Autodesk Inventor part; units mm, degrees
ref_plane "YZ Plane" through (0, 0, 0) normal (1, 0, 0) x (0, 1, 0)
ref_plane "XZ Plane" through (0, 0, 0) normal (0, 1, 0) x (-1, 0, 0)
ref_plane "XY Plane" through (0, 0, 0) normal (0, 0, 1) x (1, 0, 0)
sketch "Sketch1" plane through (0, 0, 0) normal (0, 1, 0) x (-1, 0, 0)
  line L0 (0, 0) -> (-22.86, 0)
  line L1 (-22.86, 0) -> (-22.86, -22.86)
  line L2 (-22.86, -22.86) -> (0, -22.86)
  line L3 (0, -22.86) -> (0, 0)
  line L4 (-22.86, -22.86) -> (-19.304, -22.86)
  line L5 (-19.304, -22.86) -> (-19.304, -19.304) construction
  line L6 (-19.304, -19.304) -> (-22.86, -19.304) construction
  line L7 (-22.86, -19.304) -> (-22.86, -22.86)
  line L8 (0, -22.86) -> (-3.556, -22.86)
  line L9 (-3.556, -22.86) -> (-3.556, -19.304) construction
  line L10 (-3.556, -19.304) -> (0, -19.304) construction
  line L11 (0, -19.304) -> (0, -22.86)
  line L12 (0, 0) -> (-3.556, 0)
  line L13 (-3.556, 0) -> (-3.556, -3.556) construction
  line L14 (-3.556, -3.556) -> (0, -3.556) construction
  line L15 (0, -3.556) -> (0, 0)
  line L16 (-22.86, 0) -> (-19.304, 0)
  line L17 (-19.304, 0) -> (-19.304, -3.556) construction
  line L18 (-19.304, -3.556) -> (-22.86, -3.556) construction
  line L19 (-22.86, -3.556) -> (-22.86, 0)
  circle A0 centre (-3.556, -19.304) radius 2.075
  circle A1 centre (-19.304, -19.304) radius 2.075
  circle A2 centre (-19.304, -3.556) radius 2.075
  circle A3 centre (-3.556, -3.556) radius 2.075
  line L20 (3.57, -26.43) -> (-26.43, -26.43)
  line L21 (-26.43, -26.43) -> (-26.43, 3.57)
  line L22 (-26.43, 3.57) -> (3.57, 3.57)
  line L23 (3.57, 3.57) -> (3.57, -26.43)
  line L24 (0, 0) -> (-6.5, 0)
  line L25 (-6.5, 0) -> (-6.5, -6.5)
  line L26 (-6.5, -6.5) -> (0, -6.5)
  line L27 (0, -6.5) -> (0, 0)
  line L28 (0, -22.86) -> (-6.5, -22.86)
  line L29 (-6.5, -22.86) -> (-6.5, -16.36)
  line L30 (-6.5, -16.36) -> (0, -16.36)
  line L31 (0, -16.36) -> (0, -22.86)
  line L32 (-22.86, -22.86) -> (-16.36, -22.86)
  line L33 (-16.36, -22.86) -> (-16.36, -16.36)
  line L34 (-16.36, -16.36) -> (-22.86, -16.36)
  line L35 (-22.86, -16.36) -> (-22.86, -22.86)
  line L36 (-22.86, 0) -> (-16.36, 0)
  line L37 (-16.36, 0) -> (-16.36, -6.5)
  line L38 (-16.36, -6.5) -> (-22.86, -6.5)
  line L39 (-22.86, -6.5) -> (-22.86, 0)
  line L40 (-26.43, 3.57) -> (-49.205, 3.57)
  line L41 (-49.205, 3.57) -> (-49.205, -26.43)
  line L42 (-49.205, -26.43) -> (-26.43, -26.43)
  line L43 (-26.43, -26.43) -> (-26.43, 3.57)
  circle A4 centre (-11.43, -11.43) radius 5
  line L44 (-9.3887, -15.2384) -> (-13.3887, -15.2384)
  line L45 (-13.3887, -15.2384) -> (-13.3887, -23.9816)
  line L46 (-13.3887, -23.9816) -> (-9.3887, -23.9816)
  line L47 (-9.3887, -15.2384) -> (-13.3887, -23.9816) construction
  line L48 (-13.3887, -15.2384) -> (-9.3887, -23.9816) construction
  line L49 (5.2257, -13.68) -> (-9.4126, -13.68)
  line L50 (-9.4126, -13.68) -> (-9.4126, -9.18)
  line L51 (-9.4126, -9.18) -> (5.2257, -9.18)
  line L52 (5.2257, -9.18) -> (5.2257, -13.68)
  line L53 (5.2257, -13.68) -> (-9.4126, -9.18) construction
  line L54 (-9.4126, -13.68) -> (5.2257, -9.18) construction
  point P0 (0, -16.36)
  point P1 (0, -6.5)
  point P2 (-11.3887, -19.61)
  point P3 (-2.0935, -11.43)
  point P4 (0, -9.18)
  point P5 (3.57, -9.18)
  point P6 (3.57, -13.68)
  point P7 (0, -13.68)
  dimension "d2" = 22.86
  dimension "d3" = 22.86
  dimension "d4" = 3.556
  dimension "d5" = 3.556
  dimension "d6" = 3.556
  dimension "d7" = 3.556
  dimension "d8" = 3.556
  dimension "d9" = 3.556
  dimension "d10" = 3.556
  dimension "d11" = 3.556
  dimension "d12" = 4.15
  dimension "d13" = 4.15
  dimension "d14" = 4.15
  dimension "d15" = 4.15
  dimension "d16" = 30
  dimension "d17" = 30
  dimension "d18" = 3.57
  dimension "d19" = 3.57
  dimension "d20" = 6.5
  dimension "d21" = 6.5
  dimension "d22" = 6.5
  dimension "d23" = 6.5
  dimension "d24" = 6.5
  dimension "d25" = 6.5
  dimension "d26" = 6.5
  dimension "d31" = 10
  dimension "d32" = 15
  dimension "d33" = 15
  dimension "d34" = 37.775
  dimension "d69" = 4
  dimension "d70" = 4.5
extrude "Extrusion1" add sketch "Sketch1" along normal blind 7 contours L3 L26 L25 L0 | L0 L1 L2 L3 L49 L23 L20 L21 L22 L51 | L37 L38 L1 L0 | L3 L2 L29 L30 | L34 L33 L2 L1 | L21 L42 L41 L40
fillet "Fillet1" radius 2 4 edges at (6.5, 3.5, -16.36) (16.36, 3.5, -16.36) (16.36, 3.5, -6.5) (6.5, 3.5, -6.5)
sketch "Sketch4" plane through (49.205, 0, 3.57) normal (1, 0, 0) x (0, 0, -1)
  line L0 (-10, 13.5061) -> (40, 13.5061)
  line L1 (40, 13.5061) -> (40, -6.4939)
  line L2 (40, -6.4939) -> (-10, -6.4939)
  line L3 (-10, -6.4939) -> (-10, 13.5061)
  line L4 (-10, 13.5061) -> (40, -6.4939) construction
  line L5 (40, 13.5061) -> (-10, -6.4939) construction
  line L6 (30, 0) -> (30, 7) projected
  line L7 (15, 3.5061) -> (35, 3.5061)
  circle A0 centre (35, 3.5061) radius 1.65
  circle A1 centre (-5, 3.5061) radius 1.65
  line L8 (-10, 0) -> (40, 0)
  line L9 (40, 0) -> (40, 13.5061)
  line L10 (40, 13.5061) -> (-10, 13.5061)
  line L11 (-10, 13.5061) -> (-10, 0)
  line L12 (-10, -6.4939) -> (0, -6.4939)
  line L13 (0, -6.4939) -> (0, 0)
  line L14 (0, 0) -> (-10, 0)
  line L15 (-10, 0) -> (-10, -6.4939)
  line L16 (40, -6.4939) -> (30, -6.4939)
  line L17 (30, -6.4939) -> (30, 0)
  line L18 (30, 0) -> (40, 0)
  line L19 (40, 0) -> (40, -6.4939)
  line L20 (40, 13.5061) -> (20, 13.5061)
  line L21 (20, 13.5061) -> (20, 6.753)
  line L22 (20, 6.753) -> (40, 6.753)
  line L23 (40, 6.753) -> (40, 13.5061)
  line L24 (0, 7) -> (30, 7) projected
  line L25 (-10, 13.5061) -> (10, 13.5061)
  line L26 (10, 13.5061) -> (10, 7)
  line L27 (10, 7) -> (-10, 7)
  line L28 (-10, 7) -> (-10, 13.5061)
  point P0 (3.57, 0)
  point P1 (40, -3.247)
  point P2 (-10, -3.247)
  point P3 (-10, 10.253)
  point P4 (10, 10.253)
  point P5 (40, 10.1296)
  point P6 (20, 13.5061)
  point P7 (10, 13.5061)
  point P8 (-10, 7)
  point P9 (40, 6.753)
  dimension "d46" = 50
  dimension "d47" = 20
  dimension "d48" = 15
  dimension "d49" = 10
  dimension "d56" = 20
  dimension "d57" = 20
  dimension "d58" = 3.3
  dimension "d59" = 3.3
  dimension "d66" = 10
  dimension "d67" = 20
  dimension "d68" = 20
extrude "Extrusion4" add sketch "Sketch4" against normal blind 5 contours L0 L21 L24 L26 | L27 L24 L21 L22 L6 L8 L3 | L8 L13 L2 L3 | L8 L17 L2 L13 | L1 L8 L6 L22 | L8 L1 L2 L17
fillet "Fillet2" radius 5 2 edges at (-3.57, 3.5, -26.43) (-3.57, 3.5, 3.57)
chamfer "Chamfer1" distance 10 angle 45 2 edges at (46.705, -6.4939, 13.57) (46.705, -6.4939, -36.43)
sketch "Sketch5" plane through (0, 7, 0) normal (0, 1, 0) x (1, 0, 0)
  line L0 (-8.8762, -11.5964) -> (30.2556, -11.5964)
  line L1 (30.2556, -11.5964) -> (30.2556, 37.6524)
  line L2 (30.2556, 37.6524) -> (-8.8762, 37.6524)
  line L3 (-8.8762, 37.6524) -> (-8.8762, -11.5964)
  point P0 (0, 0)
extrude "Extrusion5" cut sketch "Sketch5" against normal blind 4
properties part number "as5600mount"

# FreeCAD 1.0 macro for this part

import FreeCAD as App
import Part
import Sketcher
Q = App.Units.Quantity


def edges_at(feature, points):
    """Names of the edges that pass closest to the given points."""
    edges = feature.Shape.Edges
    near = lambda p: min(range(len(edges)), key=lambda i: edges[i].distToShape(Part.Vertex(*p))[0])
    return sorted({f"Edge{near(p) + 1}" for p in points})

doc = App.newDocument("Part")
params = doc.addObject("Spreadsheet::Sheet", "Params")
for row, (alias, value) in enumerate([
    ("sketch1_diameter", "4.15 mm"),
    ("sketch1_height", "30 mm"),
    ("sketch1_width", "6.5 mm"),
    ("sketch1_width2", "3.57 mm"),
    ("pad1_length", "7 mm"),
    ("fillet_radius", "2 mm"),
    ("sketch2_diameter", "3.3 mm"),
    ("sketch2_height", "10 mm"),
    ("sketch2_height2", "20 mm"),
    ("pad2_length", "5 mm"),
    ("fillet2_radius", "5 mm"),
    ("chamfer_size", "10 mm"),
    ("pocket1_length", "4 mm"),
], start=1):
    params.set(f"A{row}", alias)
    params.set(f"B{row}", "=" + value)
    params.setAlias(f"B{row}", alias)

body = doc.addObject("PartDesign::Body", "Body")

# Sketch on XZ plane
sketch1 = body.newObject("Sketcher::SketchObject", "Sketch")
sketch1.AttachmentSupport = (doc.getObject("XZ_Plane"), [""])
sketch1.MapMode = "FlatFace"
sketch1.addGeometry(Part.LineSegment(App.Vector(6.5, -6.5, 0), App.Vector(0, -6.5, 0)), False)
sketch1.addGeometry(Part.LineSegment(App.Vector(0, -6.5, 0), App.Vector(0, -9.2, 0)), False)
sketch1.addGeometry(Part.LineSegment(App.Vector(0, -9.2, 0), App.Vector(-3.6, -9.2, 0)), False)
sketch1.addGeometry(Part.LineSegment(App.Vector(-3.6, -9.2, 0), App.Vector(-3.6, 3.6, 0)), False)
sketch1.addGeometry(Part.LineSegment(App.Vector(-3.6, 3.6, 0), App.Vector(49.2, 3.6, 0)), False)
sketch1.addGeometry(Part.LineSegment(App.Vector(49.2, 3.6, 0), App.Vector(49.2, -26.4, 0)), False)
sketch1.addGeometry(Part.LineSegment(App.Vector(49.2, -26.4, 0), App.Vector(-3.6, -26.4, 0)), False)
sketch1.addGeometry(Part.LineSegment(App.Vector(-3.6, -26.4, 0), App.Vector(-3.6, -13.7, 0)), False)
sketch1.addGeometry(Part.LineSegment(App.Vector(-3.6, -13.7, 0), App.Vector(0, -13.7, 0)), False)
sketch1.addGeometry(Part.LineSegment(App.Vector(0, -13.7, 0), App.Vector(0, -16.4, 0)), False)
sketch1.addGeometry(Part.LineSegment(App.Vector(0, -16.4, 0), App.Vector(6.5, -16.4, 0)), False)
sketch1.addGeometry(Part.LineSegment(App.Vector(6.5, -16.4, 0), App.Vector(6.5, -22.9, 0)), False)
sketch1.addGeometry(Part.LineSegment(App.Vector(6.5, -22.9, 0), App.Vector(16.4, -22.9, 0)), False)
sketch1.addGeometry(Part.LineSegment(App.Vector(16.4, -22.9, 0), App.Vector(16.4, -16.4, 0)), False)
sketch1.addGeometry(Part.LineSegment(App.Vector(16.4, -16.4, 0), App.Vector(22.9, -16.4, 0)), False)
sketch1.addGeometry(Part.LineSegment(App.Vector(22.9, -16.4, 0), App.Vector(22.9, -6.5, 0)), False)
sketch1.addGeometry(Part.LineSegment(App.Vector(22.9, -6.5, 0), App.Vector(16.4, -6.5, 0)), False)
sketch1.addGeometry(Part.LineSegment(App.Vector(16.4, -6.5, 0), App.Vector(16.4, 0, 0)), False)
sketch1.addGeometry(Part.LineSegment(App.Vector(16.4, 0, 0), App.Vector(6.5, 0, 0)), False)
sketch1.addGeometry(Part.LineSegment(App.Vector(6.5, 0, 0), App.Vector(6.5, -6.5, 0)), False)
sketch1.addGeometry(Part.Circle(App.Vector(3.6, -3.6, 0), App.Vector(0, 0, 1), 2.1), False)
sketch1.addGeometry(Part.Circle(App.Vector(19.3, -3.6, 0), App.Vector(0, 0, 1), 2.1), False)
sketch1.addGeometry(Part.Circle(App.Vector(19.3, -19.3, 0), App.Vector(0, 0, 1), 2.1), False)
sketch1.addGeometry(Part.Circle(App.Vector(3.6, -19.3, 0), App.Vector(0, 0, 1), 2.1), False)
sketch1.addConstraint(Sketcher.Constraint("Coincident", 0, 2, 1, 1))
sketch1.addConstraint(Sketcher.Constraint("Coincident", 1, 2, 2, 1))
sketch1.addConstraint(Sketcher.Constraint("Coincident", 2, 2, 3, 1))
sketch1.addConstraint(Sketcher.Constraint("Coincident", 3, 2, 4, 1))
sketch1.addConstraint(Sketcher.Constraint("Coincident", 4, 2, 5, 1))
sketch1.addConstraint(Sketcher.Constraint("Coincident", 5, 2, 6, 1))
sketch1.addConstraint(Sketcher.Constraint("Coincident", 6, 2, 7, 1))
sketch1.addConstraint(Sketcher.Constraint("Coincident", 7, 2, 8, 1))
sketch1.addConstraint(Sketcher.Constraint("Coincident", 8, 2, 9, 1))
sketch1.addConstraint(Sketcher.Constraint("Coincident", 9, 2, 10, 1))
sketch1.addConstraint(Sketcher.Constraint("Coincident", 10, 2, 11, 1))
sketch1.addConstraint(Sketcher.Constraint("Coincident", 11, 2, 12, 1))
sketch1.addConstraint(Sketcher.Constraint("Coincident", 12, 2, 13, 1))
sketch1.addConstraint(Sketcher.Constraint("Coincident", 13, 2, 14, 1))
sketch1.addConstraint(Sketcher.Constraint("Coincident", 14, 2, 15, 1))
sketch1.addConstraint(Sketcher.Constraint("Coincident", 15, 2, 16, 1))
sketch1.addConstraint(Sketcher.Constraint("Coincident", 16, 2, 17, 1))
sketch1.addConstraint(Sketcher.Constraint("Coincident", 17, 2, 18, 1))
sketch1.addConstraint(Sketcher.Constraint("Coincident", 18, 2, 19, 1))
sketch1.addConstraint(Sketcher.Constraint("Coincident", 19, 2, 0, 1))
sketch1.addConstraint(Sketcher.Constraint("Horizontal", 0))
sketch1.addConstraint(Sketcher.Constraint("Vertical", 1))
sketch1.addConstraint(Sketcher.Constraint("Horizontal", 2))
sketch1.addConstraint(Sketcher.Constraint("Vertical", 3))
sketch1.addConstraint(Sketcher.Constraint("Horizontal", 4))
sketch1.addConstraint(Sketcher.Constraint("Vertical", 5))
sketch1.addConstraint(Sketcher.Constraint("Horizontal", 6))
sketch1.addConstraint(Sketcher.Constraint("Vertical", 7))
sketch1.addConstraint(Sketcher.Constraint("Horizontal", 8))
sketch1.addConstraint(Sketcher.Constraint("Vertical", 9))
sketch1.addConstraint(Sketcher.Constraint("Horizontal", 10))
sketch1.addConstraint(Sketcher.Constraint("Vertical", 11))
sketch1.addConstraint(Sketcher.Constraint("Horizontal", 12))
sketch1.addConstraint(Sketcher.Constraint("Vertical", 13))
sketch1.addConstraint(Sketcher.Constraint("Horizontal", 14))
sketch1.addConstraint(Sketcher.Constraint("Vertical", 15))
sketch1.addConstraint(Sketcher.Constraint("Horizontal", 16))
sketch1.addConstraint(Sketcher.Constraint("Vertical", 17))
sketch1.addConstraint(Sketcher.Constraint("Horizontal", 18))
sketch1.addConstraint(Sketcher.Constraint("Vertical", 19))
sketch1.addConstraint(Sketcher.Constraint("Equal", 20, 21))
sketch1.addConstraint(Sketcher.Constraint("Equal", 21, 22))
sketch1.addConstraint(Sketcher.Constraint("Equal", 22, 23))
sketch1.addConstraint(Sketcher.Constraint("PointOnObject", 0, 2, -2))
sketch1.addConstraint(Sketcher.Constraint("PointOnObject", 8, 2, -2))
sketch1.addConstraint(Sketcher.Constraint("PointOnObject", 17, 2, -1))
sketch1.addConstraint(Sketcher.Constraint("Horizontal", 20, 3, 21, 3))
sketch1.addConstraint(Sketcher.Constraint("Horizontal", 22, 3, 23, 3))
sketch1.addConstraint(Sketcher.Constraint("Horizontal", 10, 2, 13, 2))
sketch1.addConstraint(Sketcher.Constraint("Horizontal", 0, 2, 15, 2))
sketch1.addConstraint(Sketcher.Constraint("Vertical", 21, 3, 22, 3))
sketch1.addConstraint(Sketcher.Constraint("Vertical", 20, 3, 23, 3))
sketch1.addConstraint(Sketcher.Constraint("Vertical", 3, 2, 6, 2))
sketch1.addConstraint(Sketcher.Constraint("Vertical", 13, 2, 16, 2))
sketch1.addConstraint(Sketcher.Constraint("Vertical", 11, 2, 18, 2))
sketch1.addConstraint(Sketcher.Constraint("Equal", 10, 14))
sketch1.addConstraint(Sketcher.Constraint("Equal", 3, 7))
sketch1.addConstraint(Sketcher.Constraint("Equal", 1, 9))
sketch1.addConstraint(Sketcher.Constraint("Equal", 16, 11))
sketch1.addConstraint(Sketcher.Constraint("Equal", 18, 15))
sketch1.addConstraint(Sketcher.Constraint("Equal", 13, 17))
sketch1.addConstraint(Sketcher.Constraint("Diameter", 20, Q("4.15 mm")))
sketch1.addConstraint(Sketcher.Constraint("DistanceY", 5, 2, 5, 1, Q("30 mm")))
sketch1.addConstraint(Sketcher.Constraint("DistanceX", 0, 2, 0, 1, Q("6.5 mm")))
sketch1.addConstraint(Sketcher.Constraint("DistanceX", 2, 2, 2, 1, Q("3.57 mm")))
sketch1.addConstraint(Sketcher.Constraint("DistanceY", 7, 2, 2, 2, Q("4.5 mm")))
sketch1.addConstraint(Sketcher.Constraint("DistanceY", -1, 1, 3, 2, Q("3.57 mm")))
sketch1.addConstraint(Sketcher.Constraint("DistanceX", -1, 1, 20, 3, Q("3.556 mm")))
sketch1.addConstraint(Sketcher.Constraint("DistanceY", 20, 3, -1, 1, Q("3.556 mm")))
sketch1.addConstraint(Sketcher.Constraint("DistanceY", 11, 2, 23, 3, Q("3.556 mm")))
sketch1.addConstraint(Sketcher.Constraint("DistanceX", 22, 3, 14, 2, Q("3.556 mm")))
sketch1.addConstraint(Sketcher.Constraint("DistanceX", 4, 1, 4, 2, Q("52.775 mm")))
sketch1.setExpression("Constraints[61]", "Params.sketch1_diameter")
sketch1.setExpression("Constraints[62]", "Params.sketch1_height")
sketch1.setExpression("Constraints[63]", "Params.sketch1_width")
sketch1.setExpression("Constraints[64]", "Params.sketch1_width2")
pad1 = body.newObject("PartDesign::Pad", "Pad")
pad1.Profile = sketch1
pad1.setExpression("Length", "Params.pad1_length")
pad1.Reversed = True
doc.recompute()

fillet = body.newObject("PartDesign::Fillet", "Fillet")
fillet.Base = (pad1, edges_at(pad1, [
    (6.5, 3.5, -16.36),
    (16.36, 3.5, -16.36),
    (16.36, 3.5, -6.5),
    (6.5, 3.5, -6.5),
]))
fillet.setExpression("Radius", "Params.fillet_radius")

# Sketch on YZ plane
sketch2 = body.newObject("Sketcher::SketchObject", "Sketch001")
sketch2.AttachmentSupport = (doc.getObject("YZ_Plane"), [""])
sketch2.MapMode = "FlatFace"
sketch2.AttachmentOffset = App.Placement(App.Vector(0, 0, 49.205), App.Rotation())
sketch2.addGeometry(Part.LineSegment(App.Vector(13.5, -16.4, 0), App.Vector(13.5, -6.4, 0)), False)
sketch2.addGeometry(Part.LineSegment(App.Vector(13.5, -6.4, 0), App.Vector(7, -6.4, 0)), False)
sketch2.addGeometry(Part.LineSegment(App.Vector(7, -6.4, 0), App.Vector(7, 13.6, 0)), False)
sketch2.addGeometry(Part.LineSegment(App.Vector(7, 13.6, 0), App.Vector(-6.5, 13.6, 0)), False)
sketch2.addGeometry(Part.LineSegment(App.Vector(-6.5, 13.6, 0), App.Vector(-6.5, -36.4, 0)), False)
sketch2.addGeometry(Part.LineSegment(App.Vector(-6.5, -36.4, 0), App.Vector(6.8, -36.4, 0)), False)
sketch2.addGeometry(Part.LineSegment(App.Vector(6.8, -36.4, 0), App.Vector(6.8, -16.4, 0)), False)
sketch2.addGeometry(Part.LineSegment(App.Vector(6.8, -16.4, 0), App.Vector(13.5, -16.4, 0)), False)
sketch2.addGeometry(Part.Circle(App.Vector(3.5, 8.6, 0), App.Vector(0, 0, 1), 1.6), False)
sketch2.addGeometry(Part.Circle(App.Vector(3.5, -31.4, 0), App.Vector(0, 0, 1), 1.6), False)
sketch2.addConstraint(Sketcher.Constraint("Coincident", 0, 2, 1, 1))
sketch2.addConstraint(Sketcher.Constraint("Coincident", 1, 2, 2, 1))
sketch2.addConstraint(Sketcher.Constraint("Coincident", 2, 2, 3, 1))
sketch2.addConstraint(Sketcher.Constraint("Coincident", 3, 2, 4, 1))
sketch2.addConstraint(Sketcher.Constraint("Coincident", 4, 2, 5, 1))
sketch2.addConstraint(Sketcher.Constraint("Coincident", 5, 2, 6, 1))
sketch2.addConstraint(Sketcher.Constraint("Coincident", 6, 2, 7, 1))
sketch2.addConstraint(Sketcher.Constraint("Coincident", 7, 2, 0, 1))
sketch2.addConstraint(Sketcher.Constraint("Vertical", 0))
sketch2.addConstraint(Sketcher.Constraint("Horizontal", 1))
sketch2.addConstraint(Sketcher.Constraint("Vertical", 2))
sketch2.addConstraint(Sketcher.Constraint("Horizontal", 3))
sketch2.addConstraint(Sketcher.Constraint("Vertical", 4))
sketch2.addConstraint(Sketcher.Constraint("Horizontal", 5))
sketch2.addConstraint(Sketcher.Constraint("Vertical", 6))
sketch2.addConstraint(Sketcher.Constraint("Horizontal", 7))
sketch2.addConstraint(Sketcher.Constraint("Equal", 8, 9))
sketch2.addConstraint(Sketcher.Constraint("Vertical", 8, 3, 9, 3))
sketch2.addConstraint(Sketcher.Constraint("Equal", 2, 6))
sketch2.addConstraint(Sketcher.Constraint("Diameter", 8, Q("3.3 mm")))
sketch2.addConstraint(Sketcher.Constraint("DistanceY", 0, 1, 0, 2, Q("10 mm")))
sketch2.addConstraint(Sketcher.Constraint("DistanceY", 2, 1, 2, 2, Q("20 mm")))
sketch2.addConstraint(Sketcher.Constraint("DistanceX", 8, 3, 0, 2, Q("10 mm")))
sketch2.addConstraint(Sketcher.Constraint("DistanceY", 0, 2, 8, 3, Q("15 mm")))
sketch2.addConstraint(Sketcher.Constraint("DistanceX", 3, 2, 8, 3, Q("10 mm")))
sketch2.addConstraint(Sketcher.Constraint("DistanceY", 9, 3, 6, 2, Q("15 mm")))
sketch2.addConstraint(Sketcher.Constraint("DistanceX", -1, 1, 1, 2, Q("7 mm")))
sketch2.addConstraint(Sketcher.Constraint("DistanceX", 1, 2, 1, 1, Q("6.506 mm")))
sketch2.addConstraint(Sketcher.Constraint("DistanceX", 5, 1, 5, 2, Q("13.247 mm")))
sketch2.addConstraint(Sketcher.Constraint("DistanceY", -1, 1, 8, 3, Q("8.57 mm")))
sketch2.setExpression("Constraints[19]", "Params.sketch2_diameter")
sketch2.setExpression("Constraints[20]", "Params.sketch2_height")
sketch2.setExpression("Constraints[21]", "Params.sketch2_height2")
pad2 = body.newObject("PartDesign::Pad", "Pad001")
pad2.Profile = sketch2
pad2.setExpression("Length", "Params.pad2_length")
pad2.Reversed = True
doc.recompute()

fillet2 = body.newObject("PartDesign::Fillet", "Fillet001")
fillet2.Base = (pad2, edges_at(pad2, [(-3.57, 3.5, -26.43), (-3.57, 3.5, 3.57)]))
fillet2.setExpression("Radius", "Params.fillet2_radius")
doc.recompute()

chamfer = body.newObject("PartDesign::Chamfer", "Chamfer")
chamfer.Base = (fillet2, edges_at(fillet2, [(46.705, -6.494, 13.57), (46.705, -6.494, -36.43)]))
chamfer.setExpression("Size", "Params.chamfer_size")

# Sketch on XZ plane
sketch3 = body.newObject("Sketcher::SketchObject", "Sketch002")
sketch3.AttachmentSupport = (doc.getObject("XZ_Plane"), [""])
sketch3.MapMode = "FlatFace"
sketch3.AttachmentOffset = App.Placement(App.Vector(0, 0, -7), App.Rotation())
sketch3.addGeometry(Part.LineSegment(App.Vector(-9, -38, 0), App.Vector(-9, 12, 0)), False)
sketch3.addGeometry(Part.LineSegment(App.Vector(-9, 12, 0), App.Vector(30, 12, 0)), False)
sketch3.addGeometry(Part.LineSegment(App.Vector(30, 12, 0), App.Vector(30, -38, 0)), False)
sketch3.addGeometry(Part.LineSegment(App.Vector(30, -38, 0), App.Vector(-9, -38, 0)), False)
sketch3.addConstraint(Sketcher.Constraint("Coincident", 0, 2, 1, 1))
sketch3.addConstraint(Sketcher.Constraint("Coincident", 1, 2, 2, 1))
sketch3.addConstraint(Sketcher.Constraint("Coincident", 2, 2, 3, 1))
sketch3.addConstraint(Sketcher.Constraint("Coincident", 3, 2, 0, 1))
sketch3.addConstraint(Sketcher.Constraint("Vertical", 0))
sketch3.addConstraint(Sketcher.Constraint("Horizontal", 1))
sketch3.addConstraint(Sketcher.Constraint("Vertical", 2))
sketch3.addConstraint(Sketcher.Constraint("Horizontal", 3))
sketch3.addConstraint(Sketcher.Constraint("DistanceX", 1, 1, 1, 2, Q("39.1318 mm")))
sketch3.addConstraint(Sketcher.Constraint("DistanceY", 0, 1, 0, 2, Q("49.2488 mm")))
sketch3.addConstraint(Sketcher.Constraint("DistanceX", 0, 2, -1, 1, Q("8.8762 mm")))
sketch3.addConstraint(Sketcher.Constraint("DistanceY", -1, 1, 0, 2, Q("11.5964 mm")))
pocket1 = body.newObject("PartDesign::Pocket", "Pocket")
pocket1.Profile = sketch3
pocket1.setExpression("Length", "Params.pocket1_length")
pocket1.Reversed = True

doc.recompute()
